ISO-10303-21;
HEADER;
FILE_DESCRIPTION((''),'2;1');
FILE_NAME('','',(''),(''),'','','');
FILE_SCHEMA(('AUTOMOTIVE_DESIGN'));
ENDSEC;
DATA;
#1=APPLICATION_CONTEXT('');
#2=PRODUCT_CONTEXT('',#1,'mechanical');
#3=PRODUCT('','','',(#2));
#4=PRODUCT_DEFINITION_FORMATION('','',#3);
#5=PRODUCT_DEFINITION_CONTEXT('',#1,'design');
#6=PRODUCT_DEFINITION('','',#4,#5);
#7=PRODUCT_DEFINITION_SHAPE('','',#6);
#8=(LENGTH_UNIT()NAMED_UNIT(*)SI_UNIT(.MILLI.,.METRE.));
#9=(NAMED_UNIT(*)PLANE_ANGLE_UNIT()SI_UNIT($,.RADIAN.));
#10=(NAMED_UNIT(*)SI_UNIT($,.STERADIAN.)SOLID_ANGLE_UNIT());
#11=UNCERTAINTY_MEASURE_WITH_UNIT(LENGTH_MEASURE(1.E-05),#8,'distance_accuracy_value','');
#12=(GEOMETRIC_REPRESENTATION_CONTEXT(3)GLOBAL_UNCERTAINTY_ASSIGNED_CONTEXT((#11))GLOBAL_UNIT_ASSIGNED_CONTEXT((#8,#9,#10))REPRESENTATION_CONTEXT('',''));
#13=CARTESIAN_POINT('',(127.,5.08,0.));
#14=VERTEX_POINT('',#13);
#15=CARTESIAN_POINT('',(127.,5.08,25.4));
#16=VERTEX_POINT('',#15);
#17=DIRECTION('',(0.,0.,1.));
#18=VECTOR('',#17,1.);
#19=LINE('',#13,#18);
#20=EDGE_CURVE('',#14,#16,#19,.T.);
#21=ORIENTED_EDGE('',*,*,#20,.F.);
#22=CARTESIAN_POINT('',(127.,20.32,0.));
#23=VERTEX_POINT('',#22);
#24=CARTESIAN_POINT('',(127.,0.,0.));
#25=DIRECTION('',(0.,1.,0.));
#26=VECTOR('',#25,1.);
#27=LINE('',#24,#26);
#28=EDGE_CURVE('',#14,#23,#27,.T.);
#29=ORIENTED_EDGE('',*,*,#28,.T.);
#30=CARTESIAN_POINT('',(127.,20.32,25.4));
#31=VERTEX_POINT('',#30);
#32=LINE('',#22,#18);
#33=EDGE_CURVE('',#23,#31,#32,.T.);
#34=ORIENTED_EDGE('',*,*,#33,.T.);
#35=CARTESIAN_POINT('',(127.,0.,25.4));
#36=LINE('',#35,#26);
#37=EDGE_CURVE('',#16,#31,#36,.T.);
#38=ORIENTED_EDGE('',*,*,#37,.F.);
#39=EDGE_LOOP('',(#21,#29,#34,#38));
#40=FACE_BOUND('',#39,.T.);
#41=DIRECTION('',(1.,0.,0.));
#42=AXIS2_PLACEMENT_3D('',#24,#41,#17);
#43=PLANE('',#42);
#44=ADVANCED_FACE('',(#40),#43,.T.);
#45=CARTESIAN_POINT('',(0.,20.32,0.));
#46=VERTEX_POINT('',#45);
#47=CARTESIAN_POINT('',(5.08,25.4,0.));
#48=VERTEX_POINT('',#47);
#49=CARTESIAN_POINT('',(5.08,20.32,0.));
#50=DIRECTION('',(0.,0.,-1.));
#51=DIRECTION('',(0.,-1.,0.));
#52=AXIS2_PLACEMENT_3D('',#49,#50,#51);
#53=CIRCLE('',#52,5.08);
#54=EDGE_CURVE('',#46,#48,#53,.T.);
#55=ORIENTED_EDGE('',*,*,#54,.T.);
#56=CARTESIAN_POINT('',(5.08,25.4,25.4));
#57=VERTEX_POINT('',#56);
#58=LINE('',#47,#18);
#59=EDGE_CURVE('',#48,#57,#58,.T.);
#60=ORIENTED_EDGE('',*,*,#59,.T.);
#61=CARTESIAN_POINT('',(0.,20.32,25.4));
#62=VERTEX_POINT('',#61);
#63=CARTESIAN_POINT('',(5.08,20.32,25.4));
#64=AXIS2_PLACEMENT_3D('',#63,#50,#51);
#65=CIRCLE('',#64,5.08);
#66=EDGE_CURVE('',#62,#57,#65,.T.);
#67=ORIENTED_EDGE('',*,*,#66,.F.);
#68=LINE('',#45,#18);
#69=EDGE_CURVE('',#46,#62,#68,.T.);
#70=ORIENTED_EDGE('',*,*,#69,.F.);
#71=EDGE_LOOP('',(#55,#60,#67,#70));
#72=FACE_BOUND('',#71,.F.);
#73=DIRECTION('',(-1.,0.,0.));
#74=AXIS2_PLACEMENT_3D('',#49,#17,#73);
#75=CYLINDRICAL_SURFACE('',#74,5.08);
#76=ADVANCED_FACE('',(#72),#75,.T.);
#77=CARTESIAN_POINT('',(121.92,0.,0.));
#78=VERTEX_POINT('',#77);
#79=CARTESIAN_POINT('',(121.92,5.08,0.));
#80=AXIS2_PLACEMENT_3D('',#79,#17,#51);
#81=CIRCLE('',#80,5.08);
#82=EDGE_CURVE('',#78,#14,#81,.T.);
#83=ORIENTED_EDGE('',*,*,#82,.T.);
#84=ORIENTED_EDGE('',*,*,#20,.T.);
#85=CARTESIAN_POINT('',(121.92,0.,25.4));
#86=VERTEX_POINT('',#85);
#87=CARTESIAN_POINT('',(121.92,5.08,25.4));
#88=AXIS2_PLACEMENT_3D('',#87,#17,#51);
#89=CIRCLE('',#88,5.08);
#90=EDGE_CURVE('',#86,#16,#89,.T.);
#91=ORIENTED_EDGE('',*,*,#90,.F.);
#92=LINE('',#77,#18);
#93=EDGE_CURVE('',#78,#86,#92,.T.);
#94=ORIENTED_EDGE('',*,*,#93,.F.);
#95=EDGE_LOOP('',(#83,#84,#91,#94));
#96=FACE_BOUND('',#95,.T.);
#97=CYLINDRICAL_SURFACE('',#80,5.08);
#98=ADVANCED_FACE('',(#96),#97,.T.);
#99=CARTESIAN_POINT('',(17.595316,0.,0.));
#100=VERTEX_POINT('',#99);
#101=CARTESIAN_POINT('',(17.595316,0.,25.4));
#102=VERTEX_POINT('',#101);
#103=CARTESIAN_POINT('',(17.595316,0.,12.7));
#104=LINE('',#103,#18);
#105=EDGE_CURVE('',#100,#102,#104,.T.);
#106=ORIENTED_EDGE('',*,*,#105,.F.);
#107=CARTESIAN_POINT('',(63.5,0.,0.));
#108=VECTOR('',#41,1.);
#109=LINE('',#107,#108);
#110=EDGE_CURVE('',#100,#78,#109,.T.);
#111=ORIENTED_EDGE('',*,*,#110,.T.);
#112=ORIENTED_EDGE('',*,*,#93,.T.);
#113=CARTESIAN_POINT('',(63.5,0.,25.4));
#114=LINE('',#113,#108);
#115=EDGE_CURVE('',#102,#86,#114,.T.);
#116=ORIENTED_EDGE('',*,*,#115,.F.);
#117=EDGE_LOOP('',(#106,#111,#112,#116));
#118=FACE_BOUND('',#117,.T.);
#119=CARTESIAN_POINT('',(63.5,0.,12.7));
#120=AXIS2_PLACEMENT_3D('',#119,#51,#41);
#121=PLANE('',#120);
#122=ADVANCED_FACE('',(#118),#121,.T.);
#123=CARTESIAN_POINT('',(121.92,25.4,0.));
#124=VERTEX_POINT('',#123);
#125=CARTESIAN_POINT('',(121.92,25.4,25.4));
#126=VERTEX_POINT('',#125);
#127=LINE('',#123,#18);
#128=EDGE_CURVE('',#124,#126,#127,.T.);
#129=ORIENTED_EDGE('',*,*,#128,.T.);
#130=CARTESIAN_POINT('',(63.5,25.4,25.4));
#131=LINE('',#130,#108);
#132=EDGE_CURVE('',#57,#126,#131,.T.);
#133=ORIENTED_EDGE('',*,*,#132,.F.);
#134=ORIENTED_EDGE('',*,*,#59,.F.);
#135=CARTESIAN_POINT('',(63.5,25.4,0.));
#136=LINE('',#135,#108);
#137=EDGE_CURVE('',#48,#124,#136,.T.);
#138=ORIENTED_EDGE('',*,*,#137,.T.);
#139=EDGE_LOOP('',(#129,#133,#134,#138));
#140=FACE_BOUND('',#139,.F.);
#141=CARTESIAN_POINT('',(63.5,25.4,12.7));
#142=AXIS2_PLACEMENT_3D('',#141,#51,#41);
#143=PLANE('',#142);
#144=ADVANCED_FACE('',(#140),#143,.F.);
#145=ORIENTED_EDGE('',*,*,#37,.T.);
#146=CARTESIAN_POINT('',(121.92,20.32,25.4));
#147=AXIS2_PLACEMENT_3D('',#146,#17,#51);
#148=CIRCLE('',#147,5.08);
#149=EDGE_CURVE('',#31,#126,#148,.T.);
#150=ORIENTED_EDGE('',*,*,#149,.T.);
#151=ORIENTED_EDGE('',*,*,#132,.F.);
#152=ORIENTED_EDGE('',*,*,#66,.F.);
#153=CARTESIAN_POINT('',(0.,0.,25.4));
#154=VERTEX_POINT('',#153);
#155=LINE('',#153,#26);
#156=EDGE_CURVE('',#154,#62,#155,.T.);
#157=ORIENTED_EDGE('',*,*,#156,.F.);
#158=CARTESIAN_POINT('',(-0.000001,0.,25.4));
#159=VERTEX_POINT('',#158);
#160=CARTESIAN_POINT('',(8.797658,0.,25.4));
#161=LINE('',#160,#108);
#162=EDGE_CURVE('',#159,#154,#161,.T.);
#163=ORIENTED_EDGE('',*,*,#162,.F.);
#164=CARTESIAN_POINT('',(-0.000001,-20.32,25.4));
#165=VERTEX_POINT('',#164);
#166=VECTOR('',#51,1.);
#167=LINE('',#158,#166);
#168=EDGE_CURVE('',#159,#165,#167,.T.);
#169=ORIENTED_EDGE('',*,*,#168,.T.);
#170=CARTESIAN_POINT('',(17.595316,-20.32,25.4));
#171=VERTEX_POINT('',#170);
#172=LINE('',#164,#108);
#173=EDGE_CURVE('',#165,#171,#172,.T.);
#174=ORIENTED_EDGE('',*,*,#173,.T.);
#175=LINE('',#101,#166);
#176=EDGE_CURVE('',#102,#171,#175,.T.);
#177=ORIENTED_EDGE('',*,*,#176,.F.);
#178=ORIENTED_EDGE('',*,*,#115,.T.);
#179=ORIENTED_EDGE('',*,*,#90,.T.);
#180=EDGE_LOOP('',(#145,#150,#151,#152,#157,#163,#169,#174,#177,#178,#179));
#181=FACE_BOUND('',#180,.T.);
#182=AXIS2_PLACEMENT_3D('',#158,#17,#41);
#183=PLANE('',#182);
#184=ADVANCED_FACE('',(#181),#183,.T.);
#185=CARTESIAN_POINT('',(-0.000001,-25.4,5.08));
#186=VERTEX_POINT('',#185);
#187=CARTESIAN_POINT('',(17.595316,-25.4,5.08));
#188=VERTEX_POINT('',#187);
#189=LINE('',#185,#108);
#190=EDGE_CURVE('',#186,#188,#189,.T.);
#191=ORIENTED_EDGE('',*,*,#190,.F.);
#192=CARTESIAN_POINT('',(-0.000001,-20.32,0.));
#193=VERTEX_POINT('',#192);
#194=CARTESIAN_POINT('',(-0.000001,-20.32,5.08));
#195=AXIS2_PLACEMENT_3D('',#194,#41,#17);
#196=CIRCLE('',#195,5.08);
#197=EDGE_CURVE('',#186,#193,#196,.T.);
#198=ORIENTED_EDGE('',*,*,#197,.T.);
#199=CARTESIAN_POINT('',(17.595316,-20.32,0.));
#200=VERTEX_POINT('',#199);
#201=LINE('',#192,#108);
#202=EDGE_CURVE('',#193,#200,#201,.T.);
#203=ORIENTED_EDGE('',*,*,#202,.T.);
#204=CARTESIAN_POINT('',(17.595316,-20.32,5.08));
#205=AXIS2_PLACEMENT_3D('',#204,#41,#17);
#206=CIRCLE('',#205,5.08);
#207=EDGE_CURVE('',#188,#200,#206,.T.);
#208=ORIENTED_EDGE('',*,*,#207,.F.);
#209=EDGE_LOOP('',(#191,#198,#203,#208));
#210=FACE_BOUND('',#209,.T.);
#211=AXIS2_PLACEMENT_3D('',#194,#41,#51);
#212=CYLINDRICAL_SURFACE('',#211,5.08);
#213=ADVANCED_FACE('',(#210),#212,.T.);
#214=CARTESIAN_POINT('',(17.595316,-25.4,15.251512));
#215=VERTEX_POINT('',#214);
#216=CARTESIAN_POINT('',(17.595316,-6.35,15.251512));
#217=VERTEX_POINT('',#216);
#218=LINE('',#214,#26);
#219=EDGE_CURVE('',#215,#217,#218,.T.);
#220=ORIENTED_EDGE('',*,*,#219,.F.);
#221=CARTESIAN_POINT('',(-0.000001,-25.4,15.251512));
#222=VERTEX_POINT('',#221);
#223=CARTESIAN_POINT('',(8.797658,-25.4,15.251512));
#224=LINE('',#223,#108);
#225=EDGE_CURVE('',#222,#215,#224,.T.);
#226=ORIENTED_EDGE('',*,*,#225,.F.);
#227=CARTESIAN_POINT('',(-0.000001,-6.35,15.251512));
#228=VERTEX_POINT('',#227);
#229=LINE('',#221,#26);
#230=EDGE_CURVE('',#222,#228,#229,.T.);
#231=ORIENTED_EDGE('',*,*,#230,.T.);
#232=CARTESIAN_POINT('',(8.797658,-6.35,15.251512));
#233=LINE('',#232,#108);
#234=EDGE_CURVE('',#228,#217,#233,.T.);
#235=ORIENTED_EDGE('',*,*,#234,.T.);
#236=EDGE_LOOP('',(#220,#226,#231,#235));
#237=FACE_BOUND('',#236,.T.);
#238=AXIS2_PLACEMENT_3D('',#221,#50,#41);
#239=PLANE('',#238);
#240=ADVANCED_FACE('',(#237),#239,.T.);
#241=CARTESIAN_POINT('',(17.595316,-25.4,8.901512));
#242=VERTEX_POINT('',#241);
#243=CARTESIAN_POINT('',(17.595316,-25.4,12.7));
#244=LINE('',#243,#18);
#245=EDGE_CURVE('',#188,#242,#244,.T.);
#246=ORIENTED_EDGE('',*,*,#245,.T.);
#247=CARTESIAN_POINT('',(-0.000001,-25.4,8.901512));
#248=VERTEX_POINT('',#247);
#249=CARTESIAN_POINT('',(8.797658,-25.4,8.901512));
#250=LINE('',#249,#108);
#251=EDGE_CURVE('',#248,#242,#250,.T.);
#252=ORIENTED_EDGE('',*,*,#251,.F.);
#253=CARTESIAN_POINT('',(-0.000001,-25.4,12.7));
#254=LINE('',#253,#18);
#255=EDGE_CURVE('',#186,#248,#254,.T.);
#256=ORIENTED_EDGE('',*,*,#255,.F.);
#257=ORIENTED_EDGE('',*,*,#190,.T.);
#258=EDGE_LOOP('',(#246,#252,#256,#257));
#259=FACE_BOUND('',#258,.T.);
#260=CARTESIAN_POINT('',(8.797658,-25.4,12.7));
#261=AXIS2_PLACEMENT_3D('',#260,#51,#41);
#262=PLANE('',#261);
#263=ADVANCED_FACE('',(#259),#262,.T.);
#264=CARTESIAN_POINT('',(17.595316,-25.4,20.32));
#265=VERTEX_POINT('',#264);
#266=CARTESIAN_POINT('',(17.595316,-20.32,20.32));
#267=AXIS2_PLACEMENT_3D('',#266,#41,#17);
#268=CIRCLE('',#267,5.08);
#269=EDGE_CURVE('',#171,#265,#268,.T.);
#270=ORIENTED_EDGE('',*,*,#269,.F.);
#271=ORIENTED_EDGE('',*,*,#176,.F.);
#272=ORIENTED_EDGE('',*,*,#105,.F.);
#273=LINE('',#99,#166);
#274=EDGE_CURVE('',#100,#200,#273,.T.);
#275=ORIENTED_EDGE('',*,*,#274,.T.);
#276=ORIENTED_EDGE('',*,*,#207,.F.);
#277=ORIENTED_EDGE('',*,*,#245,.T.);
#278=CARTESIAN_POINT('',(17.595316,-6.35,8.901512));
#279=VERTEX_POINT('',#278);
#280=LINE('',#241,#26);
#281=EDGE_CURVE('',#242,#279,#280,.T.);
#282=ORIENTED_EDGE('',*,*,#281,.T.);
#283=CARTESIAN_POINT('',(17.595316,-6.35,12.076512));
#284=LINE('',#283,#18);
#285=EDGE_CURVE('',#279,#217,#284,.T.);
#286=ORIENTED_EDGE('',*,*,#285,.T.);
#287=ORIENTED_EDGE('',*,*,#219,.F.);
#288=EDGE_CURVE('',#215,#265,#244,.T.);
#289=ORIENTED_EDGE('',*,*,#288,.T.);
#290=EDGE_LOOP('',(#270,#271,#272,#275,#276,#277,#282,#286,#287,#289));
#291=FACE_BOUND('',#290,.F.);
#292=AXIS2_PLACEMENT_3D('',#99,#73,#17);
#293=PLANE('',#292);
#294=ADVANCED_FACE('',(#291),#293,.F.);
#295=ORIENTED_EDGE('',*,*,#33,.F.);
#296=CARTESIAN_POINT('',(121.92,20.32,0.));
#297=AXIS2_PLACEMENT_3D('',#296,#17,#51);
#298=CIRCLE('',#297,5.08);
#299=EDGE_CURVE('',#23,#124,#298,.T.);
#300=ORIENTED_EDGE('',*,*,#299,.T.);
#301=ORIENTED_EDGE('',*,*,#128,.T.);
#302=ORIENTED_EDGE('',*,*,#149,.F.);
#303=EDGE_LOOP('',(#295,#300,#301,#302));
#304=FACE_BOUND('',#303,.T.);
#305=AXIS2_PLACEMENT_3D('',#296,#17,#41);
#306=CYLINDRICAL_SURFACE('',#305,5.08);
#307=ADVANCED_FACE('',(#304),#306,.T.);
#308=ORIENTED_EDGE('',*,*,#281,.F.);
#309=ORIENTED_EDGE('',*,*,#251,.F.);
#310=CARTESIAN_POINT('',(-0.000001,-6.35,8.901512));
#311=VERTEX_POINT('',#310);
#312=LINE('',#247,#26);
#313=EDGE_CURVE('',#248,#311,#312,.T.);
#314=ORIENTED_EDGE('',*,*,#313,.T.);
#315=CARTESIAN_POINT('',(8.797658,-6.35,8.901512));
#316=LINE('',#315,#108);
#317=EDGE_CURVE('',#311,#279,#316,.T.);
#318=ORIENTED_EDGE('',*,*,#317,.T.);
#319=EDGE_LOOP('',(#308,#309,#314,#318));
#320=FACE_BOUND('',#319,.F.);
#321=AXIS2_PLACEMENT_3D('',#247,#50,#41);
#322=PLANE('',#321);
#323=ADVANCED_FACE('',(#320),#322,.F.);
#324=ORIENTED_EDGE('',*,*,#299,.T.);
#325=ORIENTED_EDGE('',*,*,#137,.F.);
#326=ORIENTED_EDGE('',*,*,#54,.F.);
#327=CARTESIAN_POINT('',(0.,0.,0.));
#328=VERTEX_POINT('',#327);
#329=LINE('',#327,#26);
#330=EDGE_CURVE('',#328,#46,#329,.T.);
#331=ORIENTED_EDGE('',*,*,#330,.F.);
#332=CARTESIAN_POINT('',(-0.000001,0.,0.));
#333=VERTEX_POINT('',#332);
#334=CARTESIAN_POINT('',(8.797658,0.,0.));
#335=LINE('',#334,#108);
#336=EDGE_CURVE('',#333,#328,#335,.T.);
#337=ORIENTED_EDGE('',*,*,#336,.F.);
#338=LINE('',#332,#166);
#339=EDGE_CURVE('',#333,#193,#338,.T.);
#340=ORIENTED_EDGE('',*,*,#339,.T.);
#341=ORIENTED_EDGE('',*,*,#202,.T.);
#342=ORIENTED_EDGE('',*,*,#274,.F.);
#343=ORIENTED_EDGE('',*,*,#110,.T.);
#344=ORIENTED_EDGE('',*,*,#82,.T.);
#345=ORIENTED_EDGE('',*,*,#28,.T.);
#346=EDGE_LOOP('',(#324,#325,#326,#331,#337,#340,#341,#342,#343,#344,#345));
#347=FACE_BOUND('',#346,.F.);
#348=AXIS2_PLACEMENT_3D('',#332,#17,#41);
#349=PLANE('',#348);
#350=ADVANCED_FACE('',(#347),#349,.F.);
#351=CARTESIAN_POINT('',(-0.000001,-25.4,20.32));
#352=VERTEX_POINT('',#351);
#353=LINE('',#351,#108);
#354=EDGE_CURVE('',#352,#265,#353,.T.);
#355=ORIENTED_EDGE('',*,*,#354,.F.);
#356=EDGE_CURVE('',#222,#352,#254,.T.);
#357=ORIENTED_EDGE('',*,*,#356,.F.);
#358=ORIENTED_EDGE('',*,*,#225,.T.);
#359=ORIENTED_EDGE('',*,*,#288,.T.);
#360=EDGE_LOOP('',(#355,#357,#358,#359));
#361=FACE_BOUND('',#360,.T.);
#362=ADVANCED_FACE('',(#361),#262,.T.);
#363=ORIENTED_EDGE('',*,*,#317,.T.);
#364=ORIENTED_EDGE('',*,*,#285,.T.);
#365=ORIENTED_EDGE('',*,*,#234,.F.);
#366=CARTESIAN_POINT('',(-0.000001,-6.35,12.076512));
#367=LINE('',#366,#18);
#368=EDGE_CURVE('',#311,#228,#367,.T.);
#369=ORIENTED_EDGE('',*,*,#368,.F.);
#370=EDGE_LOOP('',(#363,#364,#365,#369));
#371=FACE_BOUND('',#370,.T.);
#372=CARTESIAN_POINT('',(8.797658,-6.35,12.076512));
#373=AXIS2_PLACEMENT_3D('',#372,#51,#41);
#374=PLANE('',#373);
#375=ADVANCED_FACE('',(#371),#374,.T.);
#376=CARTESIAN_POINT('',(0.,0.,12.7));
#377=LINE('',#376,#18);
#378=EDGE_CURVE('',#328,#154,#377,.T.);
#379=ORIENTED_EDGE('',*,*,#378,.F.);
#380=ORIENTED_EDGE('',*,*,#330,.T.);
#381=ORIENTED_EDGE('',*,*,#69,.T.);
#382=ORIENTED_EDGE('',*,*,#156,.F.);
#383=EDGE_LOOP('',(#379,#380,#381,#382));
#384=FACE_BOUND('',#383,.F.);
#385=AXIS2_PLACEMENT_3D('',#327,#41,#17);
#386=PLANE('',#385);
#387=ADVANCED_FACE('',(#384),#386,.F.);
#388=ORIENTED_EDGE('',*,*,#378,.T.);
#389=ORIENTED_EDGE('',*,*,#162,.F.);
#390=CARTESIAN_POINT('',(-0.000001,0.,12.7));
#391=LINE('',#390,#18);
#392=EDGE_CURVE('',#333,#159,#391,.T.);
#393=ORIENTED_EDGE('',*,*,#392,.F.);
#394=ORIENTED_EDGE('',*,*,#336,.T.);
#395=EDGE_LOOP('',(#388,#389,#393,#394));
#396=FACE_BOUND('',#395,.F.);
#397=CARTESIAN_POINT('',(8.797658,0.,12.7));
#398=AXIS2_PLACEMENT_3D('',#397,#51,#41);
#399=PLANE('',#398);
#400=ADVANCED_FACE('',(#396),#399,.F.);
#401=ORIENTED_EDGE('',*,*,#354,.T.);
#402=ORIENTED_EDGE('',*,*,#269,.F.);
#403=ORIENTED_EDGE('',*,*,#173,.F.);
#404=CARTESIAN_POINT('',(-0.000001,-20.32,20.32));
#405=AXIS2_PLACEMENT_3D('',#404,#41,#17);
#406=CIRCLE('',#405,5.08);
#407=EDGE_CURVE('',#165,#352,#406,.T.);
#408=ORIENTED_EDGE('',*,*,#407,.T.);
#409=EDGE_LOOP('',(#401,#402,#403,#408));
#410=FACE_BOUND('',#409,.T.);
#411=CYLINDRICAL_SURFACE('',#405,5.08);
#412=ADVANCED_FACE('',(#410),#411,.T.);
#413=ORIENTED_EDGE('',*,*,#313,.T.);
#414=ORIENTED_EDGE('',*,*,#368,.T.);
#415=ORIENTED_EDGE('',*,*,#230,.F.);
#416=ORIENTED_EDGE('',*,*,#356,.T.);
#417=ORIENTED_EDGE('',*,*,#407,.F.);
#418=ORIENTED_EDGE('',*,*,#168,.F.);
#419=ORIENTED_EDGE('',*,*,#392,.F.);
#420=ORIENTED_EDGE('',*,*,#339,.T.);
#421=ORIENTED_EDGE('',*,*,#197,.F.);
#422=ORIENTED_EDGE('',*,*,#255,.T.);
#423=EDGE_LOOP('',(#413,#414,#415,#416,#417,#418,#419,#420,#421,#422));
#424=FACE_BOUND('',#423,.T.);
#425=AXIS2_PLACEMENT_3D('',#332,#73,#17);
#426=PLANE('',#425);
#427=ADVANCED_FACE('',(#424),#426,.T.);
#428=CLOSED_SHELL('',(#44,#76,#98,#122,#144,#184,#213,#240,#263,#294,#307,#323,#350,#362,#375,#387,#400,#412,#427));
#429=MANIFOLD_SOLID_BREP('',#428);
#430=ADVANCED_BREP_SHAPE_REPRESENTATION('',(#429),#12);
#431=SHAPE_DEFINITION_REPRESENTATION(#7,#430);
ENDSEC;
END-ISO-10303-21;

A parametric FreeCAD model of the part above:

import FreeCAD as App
import Part
import Sketcher
from FreeCAD import Vector
Q = App.Units.Quantity


def edges_at(feature, points):
    """Names of the edges that pass closest to the given points."""
    edges = feature.Shape.Edges
    near = lambda p: min(range(len(edges)), key=lambda i: edges[i].distToShape(Part.Vertex(*p))[0])
    return sorted({f"Edge{near(p) + 1}" for p in points})

doc = App.newDocument("Part")
body = doc.addObject("PartDesign::Body", "Body")

sketch1 = body.newObject("Sketcher::SketchObject", "Sketch")
sketch1.AttachmentSupport = (doc.getObject("XZ_Plane"), [""])
sketch1.MapMode = "FlatFace"
sketch1.addGeometry(Part.LineSegment(Vector(0, 25, 0), Vector(0, 0, 0)), False)
sketch1.addGeometry(Part.LineSegment(Vector(0, 0, 0), Vector(127, 0, 0)), False)
sketch1.addGeometry(Part.LineSegment(Vector(127, 0, 0), Vector(127, 25, 0)), False)
sketch1.addGeometry(Part.LineSegment(Vector(127, 25, 0), Vector(0, 25, 0)), False)
sketch1.addConstraint(Sketcher.Constraint("Coincident", 0, 2, 1, 1))
sketch1.addConstraint(Sketcher.Constraint("Coincident", 1, 2, 2, 1))
sketch1.addConstraint(Sketcher.Constraint("Coincident", 2, 2, 3, 1))
sketch1.addConstraint(Sketcher.Constraint("Coincident", 3, 2, 0, 1))
sketch1.addConstraint(Sketcher.Constraint("Vertical", 0))
sketch1.addConstraint(Sketcher.Constraint("Horizontal", 1))
sketch1.addConstraint(Sketcher.Constraint("Vertical", 2))
sketch1.addConstraint(Sketcher.Constraint("Horizontal", 3))
sketch1.addConstraint(Sketcher.Constraint("Coincident", 0, 2, -1, 1))
sketch1.addConstraint(Sketcher.Constraint("DistanceX", 1, 1, 1, 2, Q("5 in")))
sketch1.addConstraint(Sketcher.Constraint("DistanceY", 0, 2, 0, 1, Q("1 in")))
pad1 = body.newObject("PartDesign::Pad", "Pad")
pad1.Profile = sketch1
pad1.Length = Q("1 in")
pad1.Reversed = True

sketch2 = body.newObject("Sketcher::SketchObject", "Sketch001")
sketch2.AttachmentSupport = (doc.getObject("XZ_Plane"), [""])
sketch2.MapMode = "FlatFace"
sketch2.addGeometry(Part.LineSegment(Vector(0, 25, 0), Vector(0, 0, 0)), False)
sketch2.addGeometry(Part.LineSegment(Vector(0, 0, 0), Vector(18, 0, 0)), False)
sketch2.addGeometry(Part.LineSegment(Vector(18, 0, 0), Vector(18, 25, 0)), False)
sketch2.addGeometry(Part.LineSegment(Vector(18, 25, 0), Vector(0, 25, 0)), False)
sketch2.addConstraint(Sketcher.Constraint("Coincident", 0, 2, 1, 1))
sketch2.addConstraint(Sketcher.Constraint("Coincident", 1, 2, 2, 1))
sketch2.addConstraint(Sketcher.Constraint("Coincident", 2, 2, 3, 1))
sketch2.addConstraint(Sketcher.Constraint("Coincident", 3, 2, 0, 1))
sketch2.addConstraint(Sketcher.Constraint("Vertical", 0))
sketch2.addConstraint(Sketcher.Constraint("Horizontal", 1))
sketch2.addConstraint(Sketcher.Constraint("Vertical", 2))
sketch2.addConstraint(Sketcher.Constraint("Horizontal", 3))
sketch2.addConstraint(Sketcher.Constraint("Coincident", 0, 2, -1, 1))
sketch2.addConstraint(Sketcher.Constraint("DistanceY", 0, 2, 0, 1, Q("1 in")))
sketch2.addConstraint(Sketcher.Constraint("DistanceX", 1, 1, 1, 2, 17.595317))
pad2 = body.newObject("PartDesign::Pad", "Pad001")
pad2.Profile = sketch2
pad2.Length = Q("1 in")

sketch3 = body.newObject("Sketcher::SketchObject", "Sketch002")
sketch3.AttachmentSupport = (doc.getObject("XZ_Plane"), [""])
sketch3.MapMode = "FlatFace"
sketch3.AttachmentOffset = App.Placement(Vector(0, 0, 1 * 25.4), App.Rotation())
sketch3.addGeometry(Part.LineSegment(Vector(0, 15, 0), Vector(0, 9, 0)), False)
sketch3.addGeometry(Part.LineSegment(Vector(0, 9, 0), Vector(18, 9, 0)), False)
sketch3.addGeometry(Part.LineSegment(Vector(18, 9, 0), Vector(18, 15, 0)), False)
sketch3.addGeometry(Part.LineSegment(Vector(18, 15, 0), Vector(0, 15, 0)), False)
sketch3.addConstraint(Sketcher.Constraint("Coincident", 0, 2, 1, 1))
sketch3.addConstraint(Sketcher.Constraint("Coincident", 1, 2, 2, 1))
sketch3.addConstraint(Sketcher.Constraint("Coincident", 2, 2, 3, 1))
sketch3.addConstraint(Sketcher.Constraint("Coincident", 3, 2, 0, 1))
sketch3.addConstraint(Sketcher.Constraint("Vertical", 0))
sketch3.addConstraint(Sketcher.Constraint("Horizontal", 1))
sketch3.addConstraint(Sketcher.Constraint("Vertical", 2))
sketch3.addConstraint(Sketcher.Constraint("Horizontal", 3))
sketch3.addConstraint(Sketcher.Constraint("PointOnObject", 0, 2, -2))
sketch3.addConstraint(Sketcher.Constraint("DistanceY", 0, 2, 0, 1, Q("0.25 in")))
sketch3.addConstraint(Sketcher.Constraint("DistanceX", 1, 1, 1, 2, 17.595317))
sketch3.addConstraint(Sketcher.Constraint("DistanceY", -1, 1, 0, 2, 8.901512))
pocket1 = body.newObject("PartDesign::Pocket", "Pocket")
pocket1.Profile = sketch3
pocket1.Length = Q("0.75 in")
doc.recompute()

fillet = body.newObject("PartDesign::Fillet", "Fillet")
fillet.Base = (pocket1, edges_at(pocket1, [
    (8.798, -25.4, 25.4),
    (8.798, -25.4, 0),
    (127, 0, 12.7),
    (127, 25.4, 12.7),
]))
fillet.Radius = Q("0.2 in")
doc.recompute()

fillet2 = body.newObject("PartDesign::Fillet", "Fillet001")
fillet2.Base = (fillet, edges_at(fillet, [(0, 25.4, 12.7)]))
fillet2.Radius = Q("0.2 in")

doc.recompute()
